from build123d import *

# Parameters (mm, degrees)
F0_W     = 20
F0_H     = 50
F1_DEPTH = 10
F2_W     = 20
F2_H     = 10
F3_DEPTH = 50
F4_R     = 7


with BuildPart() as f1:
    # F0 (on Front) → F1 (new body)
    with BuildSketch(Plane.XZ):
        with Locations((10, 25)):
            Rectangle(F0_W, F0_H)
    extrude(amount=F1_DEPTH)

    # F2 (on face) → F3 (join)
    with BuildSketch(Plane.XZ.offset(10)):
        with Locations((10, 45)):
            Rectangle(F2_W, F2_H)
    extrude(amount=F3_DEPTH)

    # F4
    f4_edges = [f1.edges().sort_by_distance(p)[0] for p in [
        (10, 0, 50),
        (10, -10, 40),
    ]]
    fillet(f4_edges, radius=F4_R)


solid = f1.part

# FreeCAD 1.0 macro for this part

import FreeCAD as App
import Part
import Sketcher

V = App.Vector


def edges_at(feature, points):
    """Names of the edges that pass closest to the given points."""
    edges = feature.Shape.Edges
    near = lambda p: min(range(len(edges)), key=lambda i: edges[i].distToShape(Part.Vertex(*p))[0])
    return sorted({f"Edge{near(p) + 1}" for p in points})

doc = App.newDocument("Part")
body = doc.addObject("PartDesign::Body", "Body")

# Sketch on XZ plane
sketch1 = doc.addObject("Sketcher::SketchObject", "Sketch")
body.addObject(sketch1)
sketch1.AttachmentSupport = (doc.XZ_Plane, [""])
sketch1.MapMode = "FlatFace"
sketch1.addGeometry(Part.LineSegment(V(0, 50, 0), V(0, 0, 0)), False)
sketch1.addGeometry(Part.LineSegment(V(0, 0, 0), V(20, 0, 0)), False)
sketch1.addGeometry(Part.LineSegment(V(20, 0, 0), V(20, 50, 0)), False)
sketch1.addGeometry(Part.LineSegment(V(20, 50, 0), V(0, 50, 0)), False)
sketch1.addConstraint(Sketcher.Constraint("Coincident", 0, 2, 1, 1))
sketch1.addConstraint(Sketcher.Constraint("Coincident", 1, 2, 2, 1))
sketch1.addConstraint(Sketcher.Constraint("Coincident", 2, 2, 3, 1))
sketch1.addConstraint(Sketcher.Constraint("Coincident", 3, 2, 0, 1))
sketch1.addConstraint(Sketcher.Constraint("Vertical", 0))
sketch1.addConstraint(Sketcher.Constraint("Horizontal", 1))
sketch1.addConstraint(Sketcher.Constraint("Vertical", 2))
sketch1.addConstraint(Sketcher.Constraint("Horizontal", 3))
sketch1.addConstraint(Sketcher.Constraint("Coincident", 0, 2, -1, 1))
sketch1.addConstraint(Sketcher.Constraint("DistanceX", 1, 1, 1, 2, 20.0))
sketch1.addConstraint(Sketcher.Constraint("DistanceY", 0, 2, 0, 1, 50.0))
pad1 = doc.addObject("PartDesign::Pad", "Pad")
body.addObject(pad1)
pad1.Profile = sketch1
pad1.Length = 10

# Sketch on XZ plane
sketch2 = doc.addObject("Sketcher::SketchObject", "Sketch001")
body.addObject(sketch2)
sketch2.AttachmentSupport = (doc.XZ_Plane, [""])
sketch2.MapMode = "FlatFace"
sketch2.AttachmentOffset = App.Placement(V(0, 0, 10), App.Rotation())
sketch2.addGeometry(Part.LineSegment(V(0, 50, 0), V(0, 40, 0)), False)
sketch2.addGeometry(Part.LineSegment(V(0, 40, 0), V(20, 40, 0)), False)
sketch2.addGeometry(Part.LineSegment(V(20, 40, 0), V(20, 50, 0)), False)
sketch2.addGeometry(Part.LineSegment(V(20, 50, 0), V(0, 50, 0)), False)
sketch2.addConstraint(Sketcher.Constraint("Coincident", 0, 2, 1, 1))
sketch2.addConstraint(Sketcher.Constraint("Coincident", 1, 2, 2, 1))
sketch2.addConstraint(Sketcher.Constraint("Coincident", 2, 2, 3, 1))
sketch2.addConstraint(Sketcher.Constraint("Coincident", 3, 2, 0, 1))
sketch2.addConstraint(Sketcher.Constraint("Vertical", 0))
sketch2.addConstraint(Sketcher.Constraint("Horizontal", 1))
sketch2.addConstraint(Sketcher.Constraint("Vertical", 2))
sketch2.addConstraint(Sketcher.Constraint("Horizontal", 3))
sketch2.addConstraint(Sketcher.Constraint("PointOnObject", 0, 2, -2))
sketch2.addConstraint(Sketcher.Constraint("DistanceX", 1, 1, 1, 2, 20.0))
sketch2.addConstraint(Sketcher.Constraint("DistanceY", 0, 2, 0, 1, 10.0))
sketch2.addConstraint(Sketcher.Constraint("DistanceY", -1, 1, 0, 2, 40.0))
pad2 = doc.addObject("PartDesign::Pad", "Pad001")
body.addObject(pad2)
pad2.Profile = sketch2
pad2.Length = 50
doc.recompute()

fillet = doc.addObject("PartDesign::Fillet", "Fillet")
body.addObject(fillet)
fillet.Base = (pad2, edges_at(pad2, [(10, 0, 50), (10, -10, 40)]))
fillet.Radius = 7

doc.recompute()
